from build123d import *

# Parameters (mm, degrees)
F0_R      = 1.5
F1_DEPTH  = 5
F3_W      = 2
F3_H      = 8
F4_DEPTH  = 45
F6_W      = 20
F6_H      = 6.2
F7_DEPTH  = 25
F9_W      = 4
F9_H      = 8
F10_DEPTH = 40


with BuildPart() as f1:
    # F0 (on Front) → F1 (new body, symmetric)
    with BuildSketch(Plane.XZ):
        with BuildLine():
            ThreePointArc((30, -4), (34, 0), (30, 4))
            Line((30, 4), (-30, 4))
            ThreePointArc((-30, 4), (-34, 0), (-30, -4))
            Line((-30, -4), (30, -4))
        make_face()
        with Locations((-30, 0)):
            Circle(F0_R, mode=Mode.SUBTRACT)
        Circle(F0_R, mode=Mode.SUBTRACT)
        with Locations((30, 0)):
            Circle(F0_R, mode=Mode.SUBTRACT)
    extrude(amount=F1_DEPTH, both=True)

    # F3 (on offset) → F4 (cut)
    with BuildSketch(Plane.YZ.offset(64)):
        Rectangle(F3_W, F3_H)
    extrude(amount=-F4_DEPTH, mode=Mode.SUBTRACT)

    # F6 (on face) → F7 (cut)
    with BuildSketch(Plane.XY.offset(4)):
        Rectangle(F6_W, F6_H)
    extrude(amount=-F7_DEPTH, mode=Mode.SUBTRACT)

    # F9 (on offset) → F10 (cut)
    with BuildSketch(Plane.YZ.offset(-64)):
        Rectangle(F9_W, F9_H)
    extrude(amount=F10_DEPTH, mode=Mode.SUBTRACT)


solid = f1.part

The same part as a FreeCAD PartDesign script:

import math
import FreeCAD as App
import Part
import Sketcher
from FreeCAD import Vector
Q = App.Units.Quantity

doc = App.newDocument("Part")
body = doc.addObject("PartDesign::Body", "Body")

# Sketch on XZ plane
sketch1 = body.newObject("Sketcher::SketchObject", "Sketch")
sketch1.AttachmentSupport = (doc.getObject("XZ_Plane"), [""])
sketch1.MapMode = "FlatFace"
sketch1.addGeometry([
    Part.ArcOfCircle(Part.Circle(Vector(30, 0, 0), Vector(0, 0, 1), 4), math.radians(-90), math.radians(90)),  # 0
    Part.LineSegment(Vector(30, 4, 0), Vector(-30, 4, 0)),  # 1
    Part.ArcOfCircle(Part.Circle(Vector(-30, 0, 0), Vector(0, 0, 1), 4), math.radians(90), math.radians(270)),  # 2
    Part.LineSegment(Vector(-30, -4, 0), Vector(30, -4, 0)),  # 3
    Part.Circle(Vector(-30, 0, 0), Vector(0, 0, 1), 1.5),  # 4
    Part.Circle(Vector(0, 0, 0), Vector(0, 0, 1), 1.5),  # 5
    Part.Circle(Vector(30, 0, 0), Vector(0, 0, 1), 1.5),  # 6
], False)
sketch1.addConstraint([
    Sketcher.Constraint("Tangent", 0, 2, 1, 1),
    Sketcher.Constraint("Tangent", 1, 2, 2, 1),
    Sketcher.Constraint("Tangent", 2, 2, 3, 1),
    Sketcher.Constraint("Tangent", 3, 2, 0, 1),
    Sketcher.Constraint("Horizontal", 1),
    Sketcher.Constraint("Horizontal", 3),
    Sketcher.Constraint("Coincident", 5, 3, -1, 1),
    Sketcher.Constraint("Coincident", 4, 3, 2, 3),
    Sketcher.Constraint("Coincident", 6, 3, 0, 3),
    Sketcher.Constraint("Equal", 4, 5),
    Sketcher.Constraint("Equal", 5, 6),
    Sketcher.Constraint("Symmetric", 0, 3, 2, 3, -1, 1),
    Sketcher.Constraint("Diameter", 4, Q("3 mm")),
    Sketcher.Constraint("Radius", 0, Q("4 mm")),
    Sketcher.Constraint("DistanceX", 1, 2, 1, 1, Q("60 mm")),
])
pad1 = body.newObject("PartDesign::Pad", "Pad")
pad1.Profile = sketch1
pad1.Length = 10
pad1.Midplane = True

# Sketch on YZ plane
sketch2 = body.newObject("Sketcher::SketchObject", "Sketch001")
sketch2.AttachmentSupport = (doc.getObject("YZ_Plane"), [""])
sketch2.MapMode = "FlatFace"
sketch2.AttachmentOffset = App.Placement(Vector(0, 0, 64), App.Rotation())
sketch2.addGeometry([
    Part.LineSegment(Vector(-1, 4, 0), Vector(-1, -4, 0)),
    Part.LineSegment(Vector(-1, -4, 0), Vector(1, -4, 0)),
    Part.LineSegment(Vector(1, -4, 0), Vector(1, 4, 0)),
    Part.LineSegment(Vector(1, 4, 0), Vector(-1, 4, 0)),
], False)
sketch2.addConstraint([
    Sketcher.Constraint("Coincident", 0, 2, 1, 1),
    Sketcher.Constraint("Coincident", 1, 2, 2, 1),
    Sketcher.Constraint("Coincident", 2, 2, 3, 1),
    Sketcher.Constraint("Coincident", 3, 2, 0, 1),
    Sketcher.Constraint("Vertical", 0),
    Sketcher.Constraint("Horizontal", 1),
    Sketcher.Constraint("Vertical", 2),
    Sketcher.Constraint("Horizontal", 3),
    Sketcher.Constraint("Symmetric", 0, 2, 2, 2, -1, 1),
    Sketcher.Constraint("DistanceX", 1, 1, 1, 2, Q("2 mm")),
    Sketcher.Constraint("DistanceY", 0, 2, 0, 1, Q("8 mm")),
])
pocket1 = body.newObject("PartDesign::Pocket", "Pocket")
pocket1.Profile = sketch2
pocket1.Length = 45

# Sketch on XY plane
sketch3 = body.newObject("Sketcher::SketchObject", "Sketch002")
sketch3.AttachmentSupport = (doc.getObject("XY_Plane"), [""])
sketch3.MapMode = "FlatFace"
sketch3.AttachmentOffset = App.Placement(Vector(0, 0, 4), App.Rotation())
sketch3.addGeometry([
    Part.LineSegment(Vector(-10, 3, 0), Vector(-10, -3, 0)),
    Part.LineSegment(Vector(-10, -3, 0), Vector(10, -3, 0)),
    Part.LineSegment(Vector(10, -3, 0), Vector(10, 3, 0)),
    Part.LineSegment(Vector(10, 3, 0), Vector(-10, 3, 0)),
], False)
sketch3.addConstraint([
    Sketcher.Constraint("Coincident", 0, 2, 1, 1),
    Sketcher.Constraint("Coincident", 1, 2, 2, 1),
    Sketcher.Constraint("Coincident", 2, 2, 3, 1),
    Sketcher.Constraint("Coincident", 3, 2, 0, 1),
    Sketcher.Constraint("Vertical", 0),
    Sketcher.Constraint("Horizontal", 1),
    Sketcher.Constraint("Vertical", 2),
    Sketcher.Constraint("Horizontal", 3),
    Sketcher.Constraint("Symmetric", 0, 2, 2, 2, -1, 1),
    Sketcher.Constraint("DistanceX", 1, 1, 1, 2, Q("20 mm")),
    Sketcher.Constraint("DistanceY", 0, 2, 0, 1, Q("6.2 mm")),
])
pocket2 = body.newObject("PartDesign::Pocket", "Pocket001")
pocket2.Profile = sketch3
pocket2.Length = 25

# Sketch on YZ plane
sketch4 = body.newObject("Sketcher::SketchObject", "Sketch003")
sketch4.AttachmentSupport = (doc.getObject("YZ_Plane"), [""])
sketch4.MapMode = "FlatFace"
sketch4.AttachmentOffset = App.Placement(Vector(0, 0, -64), App.Rotation())
sketch4.addGeometry([
    Part.LineSegment(Vector(-2, 4, 0), Vector(-2, -4, 0)),
    Part.LineSegment(Vector(-2, -4, 0), Vector(2, -4, 0)),
    Part.LineSegment(Vector(2, -4, 0), Vector(2, 4, 0)),
    Part.LineSegment(Vector(2, 4, 0), Vector(-2, 4, 0)),
], False)
sketch4.addConstraint([
    Sketcher.Constraint("Coincident", 0, 2, 1, 1),
    Sketcher.Constraint("Coincident", 1, 2, 2, 1),
    Sketcher.Constraint("Coincident", 2, 2, 3, 1),
    Sketcher.Constraint("Coincident", 3, 2, 0, 1),
    Sketcher.Constraint("Vertical", 0),
    Sketcher.Constraint("Horizontal", 1),
    Sketcher.Constraint("Vertical", 2),
    Sketcher.Constraint("Horizontal", 3),
    Sketcher.Constraint("Symmetric", 0, 2, 2, 2, -1, 1),
    Sketcher.Constraint("DistanceX", 1, 1, 1, 2, Q("4 mm")),
    Sketcher.Constraint("DistanceY", 0, 2, 0, 1, Q("8 mm")),
])
pocket3 = body.newObject("PartDesign::Pocket", "Pocket002")
pocket3.Profile = sketch4
pocket3.Length = 40
pocket3.Reversed = True

doc.recompute()
